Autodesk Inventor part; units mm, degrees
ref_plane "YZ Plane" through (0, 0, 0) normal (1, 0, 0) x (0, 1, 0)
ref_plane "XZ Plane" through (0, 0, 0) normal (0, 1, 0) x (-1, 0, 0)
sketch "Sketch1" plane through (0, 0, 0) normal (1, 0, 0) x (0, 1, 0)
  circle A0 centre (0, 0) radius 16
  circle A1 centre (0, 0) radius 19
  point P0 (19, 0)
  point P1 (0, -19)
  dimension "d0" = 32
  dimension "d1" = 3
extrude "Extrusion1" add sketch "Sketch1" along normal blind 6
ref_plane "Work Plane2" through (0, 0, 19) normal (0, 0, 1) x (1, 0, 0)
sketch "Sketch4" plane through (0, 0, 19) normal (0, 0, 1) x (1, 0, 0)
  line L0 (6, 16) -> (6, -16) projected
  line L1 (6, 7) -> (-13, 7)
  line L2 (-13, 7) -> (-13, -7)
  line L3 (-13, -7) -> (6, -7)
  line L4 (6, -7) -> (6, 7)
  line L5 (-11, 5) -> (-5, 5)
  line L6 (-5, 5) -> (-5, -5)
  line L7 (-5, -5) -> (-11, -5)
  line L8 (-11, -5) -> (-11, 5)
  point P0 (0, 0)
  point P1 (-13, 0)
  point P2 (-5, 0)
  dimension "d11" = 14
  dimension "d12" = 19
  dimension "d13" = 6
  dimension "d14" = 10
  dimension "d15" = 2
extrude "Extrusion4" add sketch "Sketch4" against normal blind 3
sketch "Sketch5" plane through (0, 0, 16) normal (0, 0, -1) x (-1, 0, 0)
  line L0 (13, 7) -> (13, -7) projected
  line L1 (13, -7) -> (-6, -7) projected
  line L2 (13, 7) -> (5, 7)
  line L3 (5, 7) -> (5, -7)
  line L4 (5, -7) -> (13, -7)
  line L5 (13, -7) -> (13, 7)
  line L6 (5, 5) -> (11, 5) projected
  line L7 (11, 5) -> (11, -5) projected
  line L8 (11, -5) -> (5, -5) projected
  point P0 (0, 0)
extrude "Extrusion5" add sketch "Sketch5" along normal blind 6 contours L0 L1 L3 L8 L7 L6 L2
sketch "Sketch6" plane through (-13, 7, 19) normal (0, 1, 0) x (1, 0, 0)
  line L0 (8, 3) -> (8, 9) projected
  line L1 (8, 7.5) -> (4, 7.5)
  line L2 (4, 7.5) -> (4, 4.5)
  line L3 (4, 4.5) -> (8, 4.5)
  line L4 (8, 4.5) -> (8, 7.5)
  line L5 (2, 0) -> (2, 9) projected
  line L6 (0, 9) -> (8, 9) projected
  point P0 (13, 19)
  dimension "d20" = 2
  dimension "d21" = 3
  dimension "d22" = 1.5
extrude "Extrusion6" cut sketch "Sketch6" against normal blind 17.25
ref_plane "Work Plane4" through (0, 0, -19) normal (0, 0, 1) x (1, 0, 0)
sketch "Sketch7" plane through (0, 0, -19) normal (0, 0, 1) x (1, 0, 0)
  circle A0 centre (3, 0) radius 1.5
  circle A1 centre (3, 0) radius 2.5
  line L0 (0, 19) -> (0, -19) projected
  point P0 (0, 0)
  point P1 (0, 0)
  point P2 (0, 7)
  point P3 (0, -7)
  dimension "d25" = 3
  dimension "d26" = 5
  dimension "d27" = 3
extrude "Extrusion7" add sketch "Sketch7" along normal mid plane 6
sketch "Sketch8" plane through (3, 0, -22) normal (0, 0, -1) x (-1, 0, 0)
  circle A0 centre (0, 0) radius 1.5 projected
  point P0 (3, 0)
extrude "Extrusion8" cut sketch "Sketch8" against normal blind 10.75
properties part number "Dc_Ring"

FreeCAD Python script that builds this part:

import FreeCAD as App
import Part
import Sketcher

doc = App.newDocument("Part")
params = doc.addObject("Spreadsheet::Sheet", "Params")
for row, (alias, value) in enumerate([
    ("sketch1_diameter", "32 mm"),
    ("sketch1_diameter2", "38 mm"),
    ("pad1_length", "6 mm"),
    ("sketch2_width", "19 mm"),
    ("sketch2_width2", "6 mm"),
    ("sketch2_height", "14 mm"),
    ("sketch2_height2", "10 mm"),
    ("pad2_length", "3 mm"),
    ("sketch3_width", "8 mm"),
    ("sketch3_width2", "6 mm"),
    ("sketch3_height", "14 mm"),
    ("sketch3_height2", "2 mm"),
    ("pad3_length", "6 mm"),
    ("sketch4_height", "3 mm"),
    ("sketch4_width", "4 mm"),
    ("pocket1_length", "17.25 mm"),
    ("sketch5_diameter", "5 mm"),
    ("sketch5_diameter2", "3 mm"),
    ("pad4_length", "6 mm"),
    ("sketch6_diameter", "3 mm"),
    ("pocket2_length", "10.75 mm"),
], start=1):
    params.set(f"A{row}", alias)
    params.set(f"B{row}", "=" + value)
    params.setAlias(f"B{row}", alias)

body = doc.addObject("PartDesign::Body", "Body")

# Sketch on YZ plane
sketch1 = doc.addObject("Sketcher::SketchObject", "Sketch")
body.addObject(sketch1)
sketch1.AttachmentSupport = (doc.YZ_Plane, [""])
sketch1.MapMode = "FlatFace"
sketch1.addGeometry(Part.Circle(App.Vector(0, 0, 0), App.Vector(0, 0, 1), 19), False)
sketch1.addGeometry(Part.Circle(App.Vector(0, 0, 0), App.Vector(0, 0, 1), 16), False)
sketch1.addConstraint(Sketcher.Constraint("Coincident", 0, 3, -1, 1))
sketch1.addConstraint(Sketcher.Constraint("Coincident", 1, 3, -1, 1))
sketch1.addConstraint(Sketcher.Constraint("Diameter", 1, 32.0))
sketch1.addConstraint(Sketcher.Constraint("Diameter", 0, 38.0))
sketch1.setExpression("Constraints[2]", "Params.sketch1_diameter")
sketch1.setExpression("Constraints[3]", "Params.sketch1_diameter2")
pad1 = doc.addObject("PartDesign::Pad", "Pad")
body.addObject(pad1)
pad1.Profile = sketch1
pad1.setExpression("Length", "Params.pad1_length")

# Sketch on XY plane
sketch2 = doc.addObject("Sketcher::SketchObject", "Sketch001")
body.addObject(sketch2)
sketch2.AttachmentSupport = (doc.XY_Plane, [""])
sketch2.MapMode = "FlatFace"
sketch2.AttachmentOffset = App.Placement(App.Vector(0, 0, 19), App.Rotation())
sketch2.addGeometry(Part.LineSegment(App.Vector(6, -7, 0), App.Vector(6, 7, 0)), False)
sketch2.addGeometry(Part.LineSegment(App.Vector(6, 7, 0), App.Vector(-13, 7, 0)), False)
sketch2.addGeometry(Part.LineSegment(App.Vector(-13, 7, 0), App.Vector(-13, -7, 0)), False)
sketch2.addGeometry(Part.LineSegment(App.Vector(-13, -7, 0), App.Vector(6, -7, 0)), False)
sketch2.addGeometry(Part.LineSegment(App.Vector(-11, -5, 0), App.Vector(-11, 5, 0)), False)
sketch2.addGeometry(Part.LineSegment(App.Vector(-11, 5, 0), App.Vector(-5, 5, 0)), False)
sketch2.addGeometry(Part.LineSegment(App.Vector(-5, 5, 0), App.Vector(-5, -5, 0)), False)
sketch2.addGeometry(Part.LineSegment(App.Vector(-5, -5, 0), App.Vector(-11, -5, 0)), False)
sketch2.addConstraint(Sketcher.Constraint("Coincident", 0, 2, 1, 1))
sketch2.addConstraint(Sketcher.Constraint("Coincident", 1, 2, 2, 1))
sketch2.addConstraint(Sketcher.Constraint("Coincident", 2, 2, 3, 1))
sketch2.addConstraint(Sketcher.Constraint("Coincident", 3, 2, 0, 1))
sketch2.addConstraint(Sketcher.Constraint("Coincident", 4, 2, 5, 1))
sketch2.addConstraint(Sketcher.Constraint("Coincident", 5, 2, 6, 1))
sketch2.addConstraint(Sketcher.Constraint("Coincident", 6, 2, 7, 1))
sketch2.addConstraint(Sketcher.Constraint("Coincident", 7, 2, 4, 1))
sketch2.addConstraint(Sketcher.Constraint("Vertical", 0))
sketch2.addConstraint(Sketcher.Constraint("Horizontal", 1))
sketch2.addConstraint(Sketcher.Constraint("Vertical", 2))
sketch2.addConstraint(Sketcher.Constraint("Horizontal", 3))
sketch2.addConstraint(Sketcher.Constraint("Vertical", 4))
sketch2.addConstraint(Sketcher.Constraint("Horizontal", 5))
sketch2.addConstraint(Sketcher.Constraint("Vertical", 6))
sketch2.addConstraint(Sketcher.Constraint("Horizontal", 7))
sketch2.addConstraint(Sketcher.Constraint("DistanceX", 1, 2, 1, 1, 19.0))
sketch2.addConstraint(Sketcher.Constraint("DistanceX", 5, 1, 5, 2, 6.0))
sketch2.addConstraint(Sketcher.Constraint("DistanceY", 0, 1, 0, 2, 14.0))
sketch2.addConstraint(Sketcher.Constraint("DistanceY", 4, 1, 4, 2, 10.0))
sketch2.addConstraint(Sketcher.Constraint("DistanceX", -1, 1, 0, 2, 6.0))
sketch2.addConstraint(Sketcher.Constraint("DistanceX", 1, 2, 4, 2, 2.0))
sketch2.addConstraint(Sketcher.Constraint("DistanceY", 4, 2, 1, 2, 2.0))
sketch2.addConstraint(Sketcher.Constraint("DistanceY", -1, 1, 0, 2, 7.0))
sketch2.setExpression("Constraints[16]", "Params.sketch2_width")
sketch2.setExpression("Constraints[17]", "Params.sketch2_width2")
sketch2.setExpression("Constraints[18]", "Params.sketch2_height")
sketch2.setExpression("Constraints[19]", "Params.sketch2_height2")
pad2 = doc.addObject("PartDesign::Pad", "Pad001")
body.addObject(pad2)
pad2.Profile = sketch2
pad2.setExpression("Length", "Params.pad2_length")
pad2.Reversed = True

# Sketch on XY plane
sketch3 = doc.addObject("Sketcher::SketchObject", "Sketch002")
body.addObject(sketch3)
sketch3.AttachmentSupport = (doc.XY_Plane, [""])
sketch3.MapMode = "FlatFace"
sketch3.AttachmentOffset = App.Placement(App.Vector(0, 0, 16), App.Rotation())
sketch3.addGeometry(Part.LineSegment(App.Vector(-13, -7, 0), App.Vector(-13, 7, 0)), False)
sketch3.addGeometry(Part.LineSegment(App.Vector(-13, 7, 0), App.Vector(-5, 7, 0)), False)
sketch3.addGeometry(Part.LineSegment(App.Vector(-5, 7, 0), App.Vector(-5, 5, 0)), False)
sketch3.addGeometry(Part.LineSegment(App.Vector(-5, 5, 0), App.Vector(-11, 5, 0)), False)
sketch3.addGeometry(Part.LineSegment(App.Vector(-11, 5, 0), App.Vector(-11, -5, 0)), False)
sketch3.addGeometry(Part.LineSegment(App.Vector(-11, -5, 0), App.Vector(-5, -5, 0)), False)
sketch3.addGeometry(Part.LineSegment(App.Vector(-5, -5, 0), App.Vector(-5, -7, 0)), False)
sketch3.addGeometry(Part.LineSegment(App.Vector(-5, -7, 0), App.Vector(-13, -7, 0)), False)
sketch3.addConstraint(Sketcher.Constraint("Coincident", 0, 2, 1, 1))
sketch3.addConstraint(Sketcher.Constraint("Coincident", 1, 2, 2, 1))
sketch3.addConstraint(Sketcher.Constraint("Coincident", 2, 2, 3, 1))
sketch3.addConstraint(Sketcher.Constraint("Coincident", 3, 2, 4, 1))
sketch3.addConstraint(Sketcher.Constraint("Coincident", 4, 2, 5, 1))
sketch3.addConstraint(Sketcher.Constraint("Coincident", 5, 2, 6, 1))
sketch3.addConstraint(Sketcher.Constraint("Coincident", 6, 2, 7, 1))
sketch3.addConstraint(Sketcher.Constraint("Coincident", 7, 2, 0, 1))
sketch3.addConstraint(Sketcher.Constraint("Vertical", 0))
sketch3.addConstraint(Sketcher.Constraint("Horizontal", 1))
sketch3.addConstraint(Sketcher.Constraint("Vertical", 2))
sketch3.addConstraint(Sketcher.Constraint("Horizontal", 3))
sketch3.addConstraint(Sketcher.Constraint("Vertical", 4))
sketch3.addConstraint(Sketcher.Constraint("Horizontal", 5))
sketch3.addConstraint(Sketcher.Constraint("Vertical", 6))
sketch3.addConstraint(Sketcher.Constraint("Horizontal", 7))
sketch3.addConstraint(Sketcher.Constraint("Symmetric", 2, 2, 5, 2, -1))
sketch3.addConstraint(Sketcher.Constraint("Equal", 2, 6))
sketch3.addConstraint(Sketcher.Constraint("DistanceX", 1, 1, 1, 2, 8.0))
sketch3.addConstraint(Sketcher.Constraint("DistanceX", 3, 2, 3, 1, 6.0))
sketch3.addConstraint(Sketcher.Constraint("DistanceY", 0, 1, 0, 2, 14.0))
sketch3.addConstraint(Sketcher.Constraint("DistanceY", 2, 2, 2, 1, 2.0))
sketch3.addConstraint(Sketcher.Constraint("DistanceX", 0, 2, -1, 1, 13.0))
sketch3.setExpression("Constraints[18]", "Params.sketch3_width")
sketch3.setExpression("Constraints[19]", "Params.sketch3_width2")
sketch3.setExpression("Constraints[20]", "Params.sketch3_height")
sketch3.setExpression("Constraints[21]", "Params.sketch3_height2")
pad3 = doc.addObject("PartDesign::Pad", "Pad002")
body.addObject(pad3)
pad3.Profile = sketch3
pad3.setExpression("Length", "Params.pad3_length")
pad3.Reversed = True

# Sketch on XZ plane
sketch4 = doc.addObject("Sketcher::SketchObject", "Sketch003")
body.addObject(sketch4)
sketch4.AttachmentSupport = (doc.XZ_Plane, [""])
sketch4.MapMode = "FlatFace"
sketch4.AttachmentOffset = App.Placement(App.Vector(0, 0, -7), App.Rotation())
sketch4.addGeometry(Part.LineSegment(App.Vector(-9, 14.5, 0), App.Vector(-5, 14.5, 0)), False)
sketch4.addGeometry(Part.LineSegment(App.Vector(-5, 14.5, 0), App.Vector(-5, 11.5, 0)), False)
sketch4.addGeometry(Part.LineSegment(App.Vector(-5, 11.5, 0), App.Vector(-9, 11.5, 0)), False)
sketch4.addGeometry(Part.LineSegment(App.Vector(-9, 11.5, 0), App.Vector(-9, 14.5, 0)), False)
sketch4.addConstraint(Sketcher.Constraint("Coincident", 0, 2, 1, 1))
sketch4.addConstraint(Sketcher.Constraint("Coincident", 1, 2, 2, 1))
sketch4.addConstraint(Sketcher.Constraint("Coincident", 2, 2, 3, 1))
sketch4.addConstraint(Sketcher.Constraint("Coincident", 3, 2, 0, 1))
sketch4.addConstraint(Sketcher.Constraint("Horizontal", 0))
sketch4.addConstraint(Sketcher.Constraint("Vertical", 1))
sketch4.addConstraint(Sketcher.Constraint("Horizontal", 2))
sketch4.addConstraint(Sketcher.Constraint("Vertical", 3))
sketch4.addConstraint(Sketcher.Constraint("DistanceY", 1, 2, 1, 1, 3.0))
sketch4.addConstraint(Sketcher.Constraint("DistanceX", 0, 1, 0, 2, 4.0))
sketch4.addConstraint(Sketcher.Constraint("DistanceX", 0, 2, -1, 1, 5.0))
sketch4.addConstraint(Sketcher.Constraint("DistanceY", -1, 1, 0, 2, 14.5))
sketch4.setExpression("Constraints[8]", "Params.sketch4_height")
sketch4.setExpression("Constraints[9]", "Params.sketch4_width")
pocket1 = doc.addObject("PartDesign::Pocket", "Pocket")
body.addObject(pocket1)
pocket1.Profile = sketch4
pocket1.setExpression("Length", "Params.pocket1_length")
pocket1.Reversed = True

# Sketch on XY plane
sketch5 = doc.addObject("Sketcher::SketchObject", "Sketch004")
body.addObject(sketch5)
sketch5.AttachmentSupport = (doc.XY_Plane, [""])
sketch5.MapMode = "FlatFace"
sketch5.AttachmentOffset = App.Placement(App.Vector(0, 0, -19), App.Rotation())
sketch5.addGeometry(Part.Circle(App.Vector(3, 0, 0), App.Vector(0, 0, 1), 2.5), False)
sketch5.addGeometry(Part.Circle(App.Vector(3, 0, 0), App.Vector(0, 0, 1), 1.5), False)
sketch5.addConstraint(Sketcher.Constraint("Coincident", 1, 3, 0, 3))
sketch5.addConstraint(Sketcher.Constraint("PointOnObject", 0, 3, -1))
sketch5.addConstraint(Sketcher.Constraint("Diameter", 0, 5.0))
sketch5.addConstraint(Sketcher.Constraint("Diameter", 1, 3.0))
sketch5.addConstraint(Sketcher.Constraint("DistanceX", -1, 1, 0, 3, 3.0))
sketch5.setExpression("Constraints[2]", "Params.sketch5_diameter")
sketch5.setExpression("Constraints[3]", "Params.sketch5_diameter2")
pad4 = doc.addObject("PartDesign::Pad", "Pad003")
body.addObject(pad4)
pad4.Profile = sketch5
pad4.setExpression("Length", "Params.pad4_length")
pad4.Midplane = True

# Sketch on XY plane
sketch6 = doc.addObject("Sketcher::SketchObject", "Sketch005")
body.addObject(sketch6)
sketch6.AttachmentSupport = (doc.XY_Plane, [""])
sketch6.MapMode = "FlatFace"
sketch6.AttachmentOffset = App.Placement(App.Vector(0, 0, -22), App.Rotation())
sketch6.addGeometry(Part.Circle(App.Vector(3, 0, 0), App.Vector(0, 0, 1), 1.5), False)
sketch6.addConstraint(Sketcher.Constraint("PointOnObject", 0, 3, -1))
sketch6.addConstraint(Sketcher.Constraint("Diameter", 0, 3.0))
sketch6.addConstraint(Sketcher.Constraint("DistanceX", -1, 1, 0, 3, 3.0))
sketch6.setExpression("Constraints[1]", "Params.sketch6_diameter")
pocket2 = doc.addObject("PartDesign::Pocket", "Pocket001")
body.addObject(pocket2)
pocket2.Profile = sketch6
pocket2.setExpression("Length", "Params.pocket2_length")
pocket2.Reversed = True

doc.recompute()
